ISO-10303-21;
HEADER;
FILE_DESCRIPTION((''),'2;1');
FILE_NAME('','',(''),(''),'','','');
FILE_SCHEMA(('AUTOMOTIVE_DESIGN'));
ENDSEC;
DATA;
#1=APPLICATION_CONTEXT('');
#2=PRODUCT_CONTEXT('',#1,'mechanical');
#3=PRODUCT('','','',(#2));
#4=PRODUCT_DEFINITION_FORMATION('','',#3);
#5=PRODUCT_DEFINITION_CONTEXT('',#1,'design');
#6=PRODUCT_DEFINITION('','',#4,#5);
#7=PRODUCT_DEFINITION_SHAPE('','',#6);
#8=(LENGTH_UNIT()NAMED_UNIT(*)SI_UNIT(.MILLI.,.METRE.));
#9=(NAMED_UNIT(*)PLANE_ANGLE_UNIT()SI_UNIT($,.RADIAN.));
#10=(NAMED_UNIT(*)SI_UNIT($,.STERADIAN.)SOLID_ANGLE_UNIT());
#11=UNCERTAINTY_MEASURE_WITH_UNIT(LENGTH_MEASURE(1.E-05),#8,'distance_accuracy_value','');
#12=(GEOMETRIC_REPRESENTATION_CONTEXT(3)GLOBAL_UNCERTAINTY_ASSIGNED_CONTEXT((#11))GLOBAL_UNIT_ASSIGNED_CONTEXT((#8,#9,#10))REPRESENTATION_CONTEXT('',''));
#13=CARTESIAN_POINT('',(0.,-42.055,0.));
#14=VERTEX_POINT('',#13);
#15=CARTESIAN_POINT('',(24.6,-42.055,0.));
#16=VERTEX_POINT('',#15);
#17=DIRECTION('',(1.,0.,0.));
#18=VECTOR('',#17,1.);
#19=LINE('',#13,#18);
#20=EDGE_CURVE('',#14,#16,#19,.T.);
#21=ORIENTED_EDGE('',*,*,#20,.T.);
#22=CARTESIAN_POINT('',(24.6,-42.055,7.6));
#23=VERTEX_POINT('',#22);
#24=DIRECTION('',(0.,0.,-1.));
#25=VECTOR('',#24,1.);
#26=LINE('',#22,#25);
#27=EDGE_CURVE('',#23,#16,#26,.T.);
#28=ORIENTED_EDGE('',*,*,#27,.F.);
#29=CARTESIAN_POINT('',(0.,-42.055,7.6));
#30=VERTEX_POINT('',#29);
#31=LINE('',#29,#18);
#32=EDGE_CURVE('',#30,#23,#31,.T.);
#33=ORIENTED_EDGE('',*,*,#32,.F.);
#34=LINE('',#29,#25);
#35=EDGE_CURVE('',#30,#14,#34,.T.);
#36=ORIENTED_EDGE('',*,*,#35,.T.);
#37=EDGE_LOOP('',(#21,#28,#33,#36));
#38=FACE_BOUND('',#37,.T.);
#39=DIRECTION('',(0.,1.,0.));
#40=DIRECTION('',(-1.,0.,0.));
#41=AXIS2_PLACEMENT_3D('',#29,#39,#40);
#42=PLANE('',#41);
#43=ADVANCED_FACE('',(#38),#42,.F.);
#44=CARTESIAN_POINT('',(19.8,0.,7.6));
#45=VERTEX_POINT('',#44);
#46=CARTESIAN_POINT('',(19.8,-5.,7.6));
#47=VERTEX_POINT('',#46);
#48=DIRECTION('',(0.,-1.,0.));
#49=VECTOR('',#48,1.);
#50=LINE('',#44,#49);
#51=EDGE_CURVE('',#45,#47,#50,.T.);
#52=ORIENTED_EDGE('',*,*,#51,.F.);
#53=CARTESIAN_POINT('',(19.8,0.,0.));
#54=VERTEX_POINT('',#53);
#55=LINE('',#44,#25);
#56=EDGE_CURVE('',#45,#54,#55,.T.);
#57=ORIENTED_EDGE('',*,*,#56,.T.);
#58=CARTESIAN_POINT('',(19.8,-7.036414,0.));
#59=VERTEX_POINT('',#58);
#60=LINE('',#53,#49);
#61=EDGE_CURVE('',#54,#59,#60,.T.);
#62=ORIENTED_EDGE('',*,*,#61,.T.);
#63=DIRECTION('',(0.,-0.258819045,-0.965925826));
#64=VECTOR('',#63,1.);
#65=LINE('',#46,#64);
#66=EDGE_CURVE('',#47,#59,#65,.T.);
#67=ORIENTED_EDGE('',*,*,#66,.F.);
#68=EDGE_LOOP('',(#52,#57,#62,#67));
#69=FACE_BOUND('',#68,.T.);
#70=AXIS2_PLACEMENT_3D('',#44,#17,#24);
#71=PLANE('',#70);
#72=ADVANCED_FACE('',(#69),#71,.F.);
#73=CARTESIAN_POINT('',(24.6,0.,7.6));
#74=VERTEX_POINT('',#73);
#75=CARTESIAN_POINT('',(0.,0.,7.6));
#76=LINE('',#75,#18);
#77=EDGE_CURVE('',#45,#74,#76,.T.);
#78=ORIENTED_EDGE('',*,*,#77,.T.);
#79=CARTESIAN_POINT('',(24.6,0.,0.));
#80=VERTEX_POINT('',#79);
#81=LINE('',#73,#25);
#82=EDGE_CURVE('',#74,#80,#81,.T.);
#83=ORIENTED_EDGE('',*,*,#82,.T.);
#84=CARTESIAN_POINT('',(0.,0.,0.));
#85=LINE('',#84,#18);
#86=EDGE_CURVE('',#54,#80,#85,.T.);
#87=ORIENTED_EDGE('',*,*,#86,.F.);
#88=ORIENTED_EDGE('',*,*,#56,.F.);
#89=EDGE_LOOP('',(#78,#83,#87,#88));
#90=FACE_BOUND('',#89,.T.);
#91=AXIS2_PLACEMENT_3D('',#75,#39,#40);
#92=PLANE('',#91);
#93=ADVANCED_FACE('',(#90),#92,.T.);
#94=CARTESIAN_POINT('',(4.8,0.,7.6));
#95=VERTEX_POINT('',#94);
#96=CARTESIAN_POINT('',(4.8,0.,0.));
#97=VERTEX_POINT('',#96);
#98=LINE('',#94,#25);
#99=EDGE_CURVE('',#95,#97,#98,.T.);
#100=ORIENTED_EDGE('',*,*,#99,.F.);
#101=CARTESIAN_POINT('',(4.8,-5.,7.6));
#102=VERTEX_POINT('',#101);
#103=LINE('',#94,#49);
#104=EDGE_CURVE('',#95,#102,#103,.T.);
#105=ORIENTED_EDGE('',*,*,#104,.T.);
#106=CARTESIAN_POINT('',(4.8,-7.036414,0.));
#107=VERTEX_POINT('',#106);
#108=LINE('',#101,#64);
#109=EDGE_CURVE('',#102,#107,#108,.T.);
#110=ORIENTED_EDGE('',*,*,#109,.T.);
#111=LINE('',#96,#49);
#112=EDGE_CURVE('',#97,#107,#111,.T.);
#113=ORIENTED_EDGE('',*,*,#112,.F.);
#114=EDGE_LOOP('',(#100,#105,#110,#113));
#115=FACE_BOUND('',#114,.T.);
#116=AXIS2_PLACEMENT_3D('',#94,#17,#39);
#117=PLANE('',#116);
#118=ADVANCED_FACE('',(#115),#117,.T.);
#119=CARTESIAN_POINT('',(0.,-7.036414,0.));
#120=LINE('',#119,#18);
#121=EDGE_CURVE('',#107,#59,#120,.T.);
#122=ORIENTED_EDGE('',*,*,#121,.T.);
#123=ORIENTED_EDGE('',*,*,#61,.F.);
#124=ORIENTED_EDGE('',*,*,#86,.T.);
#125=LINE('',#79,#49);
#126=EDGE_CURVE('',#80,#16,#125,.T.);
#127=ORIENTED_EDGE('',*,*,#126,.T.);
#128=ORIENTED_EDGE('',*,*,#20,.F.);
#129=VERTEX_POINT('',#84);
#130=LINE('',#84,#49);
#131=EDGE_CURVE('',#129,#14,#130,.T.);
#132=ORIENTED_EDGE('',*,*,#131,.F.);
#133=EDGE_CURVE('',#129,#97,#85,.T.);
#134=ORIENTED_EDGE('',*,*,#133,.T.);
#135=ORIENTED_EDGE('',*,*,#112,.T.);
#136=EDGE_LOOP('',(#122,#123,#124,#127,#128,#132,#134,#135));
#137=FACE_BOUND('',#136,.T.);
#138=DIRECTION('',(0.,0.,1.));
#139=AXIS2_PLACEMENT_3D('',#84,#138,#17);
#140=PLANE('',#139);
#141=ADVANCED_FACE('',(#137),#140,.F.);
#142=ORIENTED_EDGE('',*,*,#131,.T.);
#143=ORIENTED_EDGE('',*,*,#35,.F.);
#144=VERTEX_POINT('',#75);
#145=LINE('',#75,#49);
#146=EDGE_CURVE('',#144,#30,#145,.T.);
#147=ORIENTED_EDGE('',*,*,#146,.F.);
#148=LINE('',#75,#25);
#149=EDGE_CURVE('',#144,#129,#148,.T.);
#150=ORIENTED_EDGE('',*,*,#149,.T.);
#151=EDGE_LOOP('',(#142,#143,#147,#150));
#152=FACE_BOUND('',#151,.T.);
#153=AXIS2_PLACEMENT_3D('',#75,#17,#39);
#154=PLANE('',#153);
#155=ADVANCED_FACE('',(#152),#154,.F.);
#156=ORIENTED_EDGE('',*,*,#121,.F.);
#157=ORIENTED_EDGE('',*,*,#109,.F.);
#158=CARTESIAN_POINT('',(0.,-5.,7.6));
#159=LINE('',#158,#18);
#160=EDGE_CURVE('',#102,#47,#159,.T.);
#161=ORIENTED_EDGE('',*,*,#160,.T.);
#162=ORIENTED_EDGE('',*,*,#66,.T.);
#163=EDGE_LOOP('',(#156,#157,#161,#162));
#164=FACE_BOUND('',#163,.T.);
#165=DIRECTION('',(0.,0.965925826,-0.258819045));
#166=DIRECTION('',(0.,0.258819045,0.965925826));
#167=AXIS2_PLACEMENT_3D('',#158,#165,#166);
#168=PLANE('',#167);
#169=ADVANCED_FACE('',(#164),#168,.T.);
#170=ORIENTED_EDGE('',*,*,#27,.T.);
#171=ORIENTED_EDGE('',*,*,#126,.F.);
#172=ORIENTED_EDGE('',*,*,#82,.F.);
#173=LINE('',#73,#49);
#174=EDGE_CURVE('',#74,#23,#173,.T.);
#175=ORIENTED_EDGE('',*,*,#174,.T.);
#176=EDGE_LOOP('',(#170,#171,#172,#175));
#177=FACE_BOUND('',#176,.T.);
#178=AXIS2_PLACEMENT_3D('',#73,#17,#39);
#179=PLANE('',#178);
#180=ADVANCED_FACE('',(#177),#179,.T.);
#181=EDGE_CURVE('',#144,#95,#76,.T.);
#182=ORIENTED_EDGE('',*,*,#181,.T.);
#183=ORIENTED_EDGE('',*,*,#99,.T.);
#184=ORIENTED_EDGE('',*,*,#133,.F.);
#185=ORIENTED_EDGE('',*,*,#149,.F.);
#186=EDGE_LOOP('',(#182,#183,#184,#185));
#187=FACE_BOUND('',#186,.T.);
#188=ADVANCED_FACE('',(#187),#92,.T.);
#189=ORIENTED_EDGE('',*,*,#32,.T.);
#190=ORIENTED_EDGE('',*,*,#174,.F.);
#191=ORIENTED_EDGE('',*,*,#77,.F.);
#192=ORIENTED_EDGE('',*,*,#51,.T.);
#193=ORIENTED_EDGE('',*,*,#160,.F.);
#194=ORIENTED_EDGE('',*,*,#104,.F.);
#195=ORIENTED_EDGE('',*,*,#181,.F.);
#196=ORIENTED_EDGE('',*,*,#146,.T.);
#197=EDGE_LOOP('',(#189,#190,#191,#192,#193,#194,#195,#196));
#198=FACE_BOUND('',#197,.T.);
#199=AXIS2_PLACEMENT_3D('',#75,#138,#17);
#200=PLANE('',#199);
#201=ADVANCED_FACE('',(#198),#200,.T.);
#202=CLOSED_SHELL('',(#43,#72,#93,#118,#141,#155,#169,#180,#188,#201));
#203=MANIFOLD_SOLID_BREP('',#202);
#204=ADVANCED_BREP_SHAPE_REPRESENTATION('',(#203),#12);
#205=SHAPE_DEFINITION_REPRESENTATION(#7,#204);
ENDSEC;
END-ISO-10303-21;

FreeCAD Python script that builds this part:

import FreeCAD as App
import Part
import Sketcher
from FreeCAD import Vector


def faces_at(feature, points):
    """Names of the faces that lie closest to the given points."""
    faces = feature.Shape.Faces
    near = lambda p: min(range(len(faces)), key=lambda i: faces[i].distToShape(Part.Vertex(*p))[0])
    return sorted({f"Face{near(p) + 1}" for p in points})


def add_polygon(sketch, points):
    """Adds a closed chain of lines whose ends are joined by coincident constraints."""
    first, n = sketch.GeometryCount, len(points)
    for a, b in zip(points, points[1:] + points[:1]):
        sketch.addGeometry(Part.LineSegment(App.Vector(*a, 0), App.Vector(*b, 0)), False)
    for i in range(n):
        sketch.addConstraint(Sketcher.Constraint("Coincident", first + i, 2, first + (i + 1) % n, 1))

doc = App.newDocument("Part")
params = doc.addObject("Spreadsheet::Sheet", "Params")
for row, (alias, value) in enumerate([
    ("sketch1_width", "15 mm"),
    ("sketch1_height", "5 mm"),
    ("sketch1_width2", "4.8 mm"),
    ("pad1_length", "7.6 mm"),
    ("draft_angle", "15 deg"),
], start=1):
    params.set(f"A{row}", alias)
    params.set(f"B{row}", "=" + value)
    params.setAlias(f"B{row}", alias)

body = doc.addObject("PartDesign::Body", "Body")

# Sketch on XY plane
sketch1 = body.newObject("Sketcher::SketchObject", "Sketch")
sketch1.AttachmentSupport = (doc.getObject("XY_Plane"), [""])
sketch1.MapMode = "FlatFace"
add_polygon(sketch1, [(4.8, 0), (0, 0), (0, -42.055), (24.6, -42.055), (24.6, 0), (19.8, 0), (19.8, -5), (4.8, -5)])  # lines 0-7
sketch1.addConstraint([
    Sketcher.Constraint("Horizontal", 0),
    Sketcher.Constraint("Vertical", 1),
    Sketcher.Constraint("Horizontal", 2),
    Sketcher.Constraint("Vertical", 3),
    Sketcher.Constraint("Horizontal", 4),
    Sketcher.Constraint("Vertical", 5),
    Sketcher.Constraint("Horizontal", 6),
    Sketcher.Constraint("Vertical", 7),
    Sketcher.Constraint("Coincident", 0, 2, -1, 1),
    Sketcher.Constraint("PointOnObject", 3, 2, -1),
    Sketcher.Constraint("Equal", 0, 4),
    Sketcher.Constraint("DistanceX", 6, 2, 6, 1, 15.0),
    Sketcher.Constraint("DistanceY", 5, 2, 5, 1, 5.0),
    Sketcher.Constraint("DistanceX", 0, 2, 0, 1, 4.8),
    Sketcher.Constraint("DistanceY", 1, 2, 1, 1, 42.055),
])
sketch1.setExpression("Constraints[19]", "Params.sketch1_width")
sketch1.setExpression("Constraints[20]", "Params.sketch1_height")
sketch1.setExpression("Constraints[21]", "Params.sketch1_width2")
pad1 = body.newObject("PartDesign::Pad", "Pad")
pad1.Profile = sketch1
pad1.setExpression("Length", "Params.pad1_length")
doc.recompute()

datumplane = body.newObject("PartDesign::Plane", "DatumPlane")
datumplane.AttachmentSupport = (doc.getObject("XY_Plane"), [""])
datumplane.MapMode = "FlatFace"
datumplane.AttachmentOffset = App.Placement(Vector(0, 0, 7.6), App.Rotation())
draft = body.newObject("PartDesign::Draft", "Draft")
draft.Base = (pad1, faces_at(pad1, [(12.3, -5, 3.8)]))
draft.NeutralPlane = (datumplane, [""])
draft.setExpression("Angle", "Params.draft_angle")
draft.Reversed = True

doc.recompute()
